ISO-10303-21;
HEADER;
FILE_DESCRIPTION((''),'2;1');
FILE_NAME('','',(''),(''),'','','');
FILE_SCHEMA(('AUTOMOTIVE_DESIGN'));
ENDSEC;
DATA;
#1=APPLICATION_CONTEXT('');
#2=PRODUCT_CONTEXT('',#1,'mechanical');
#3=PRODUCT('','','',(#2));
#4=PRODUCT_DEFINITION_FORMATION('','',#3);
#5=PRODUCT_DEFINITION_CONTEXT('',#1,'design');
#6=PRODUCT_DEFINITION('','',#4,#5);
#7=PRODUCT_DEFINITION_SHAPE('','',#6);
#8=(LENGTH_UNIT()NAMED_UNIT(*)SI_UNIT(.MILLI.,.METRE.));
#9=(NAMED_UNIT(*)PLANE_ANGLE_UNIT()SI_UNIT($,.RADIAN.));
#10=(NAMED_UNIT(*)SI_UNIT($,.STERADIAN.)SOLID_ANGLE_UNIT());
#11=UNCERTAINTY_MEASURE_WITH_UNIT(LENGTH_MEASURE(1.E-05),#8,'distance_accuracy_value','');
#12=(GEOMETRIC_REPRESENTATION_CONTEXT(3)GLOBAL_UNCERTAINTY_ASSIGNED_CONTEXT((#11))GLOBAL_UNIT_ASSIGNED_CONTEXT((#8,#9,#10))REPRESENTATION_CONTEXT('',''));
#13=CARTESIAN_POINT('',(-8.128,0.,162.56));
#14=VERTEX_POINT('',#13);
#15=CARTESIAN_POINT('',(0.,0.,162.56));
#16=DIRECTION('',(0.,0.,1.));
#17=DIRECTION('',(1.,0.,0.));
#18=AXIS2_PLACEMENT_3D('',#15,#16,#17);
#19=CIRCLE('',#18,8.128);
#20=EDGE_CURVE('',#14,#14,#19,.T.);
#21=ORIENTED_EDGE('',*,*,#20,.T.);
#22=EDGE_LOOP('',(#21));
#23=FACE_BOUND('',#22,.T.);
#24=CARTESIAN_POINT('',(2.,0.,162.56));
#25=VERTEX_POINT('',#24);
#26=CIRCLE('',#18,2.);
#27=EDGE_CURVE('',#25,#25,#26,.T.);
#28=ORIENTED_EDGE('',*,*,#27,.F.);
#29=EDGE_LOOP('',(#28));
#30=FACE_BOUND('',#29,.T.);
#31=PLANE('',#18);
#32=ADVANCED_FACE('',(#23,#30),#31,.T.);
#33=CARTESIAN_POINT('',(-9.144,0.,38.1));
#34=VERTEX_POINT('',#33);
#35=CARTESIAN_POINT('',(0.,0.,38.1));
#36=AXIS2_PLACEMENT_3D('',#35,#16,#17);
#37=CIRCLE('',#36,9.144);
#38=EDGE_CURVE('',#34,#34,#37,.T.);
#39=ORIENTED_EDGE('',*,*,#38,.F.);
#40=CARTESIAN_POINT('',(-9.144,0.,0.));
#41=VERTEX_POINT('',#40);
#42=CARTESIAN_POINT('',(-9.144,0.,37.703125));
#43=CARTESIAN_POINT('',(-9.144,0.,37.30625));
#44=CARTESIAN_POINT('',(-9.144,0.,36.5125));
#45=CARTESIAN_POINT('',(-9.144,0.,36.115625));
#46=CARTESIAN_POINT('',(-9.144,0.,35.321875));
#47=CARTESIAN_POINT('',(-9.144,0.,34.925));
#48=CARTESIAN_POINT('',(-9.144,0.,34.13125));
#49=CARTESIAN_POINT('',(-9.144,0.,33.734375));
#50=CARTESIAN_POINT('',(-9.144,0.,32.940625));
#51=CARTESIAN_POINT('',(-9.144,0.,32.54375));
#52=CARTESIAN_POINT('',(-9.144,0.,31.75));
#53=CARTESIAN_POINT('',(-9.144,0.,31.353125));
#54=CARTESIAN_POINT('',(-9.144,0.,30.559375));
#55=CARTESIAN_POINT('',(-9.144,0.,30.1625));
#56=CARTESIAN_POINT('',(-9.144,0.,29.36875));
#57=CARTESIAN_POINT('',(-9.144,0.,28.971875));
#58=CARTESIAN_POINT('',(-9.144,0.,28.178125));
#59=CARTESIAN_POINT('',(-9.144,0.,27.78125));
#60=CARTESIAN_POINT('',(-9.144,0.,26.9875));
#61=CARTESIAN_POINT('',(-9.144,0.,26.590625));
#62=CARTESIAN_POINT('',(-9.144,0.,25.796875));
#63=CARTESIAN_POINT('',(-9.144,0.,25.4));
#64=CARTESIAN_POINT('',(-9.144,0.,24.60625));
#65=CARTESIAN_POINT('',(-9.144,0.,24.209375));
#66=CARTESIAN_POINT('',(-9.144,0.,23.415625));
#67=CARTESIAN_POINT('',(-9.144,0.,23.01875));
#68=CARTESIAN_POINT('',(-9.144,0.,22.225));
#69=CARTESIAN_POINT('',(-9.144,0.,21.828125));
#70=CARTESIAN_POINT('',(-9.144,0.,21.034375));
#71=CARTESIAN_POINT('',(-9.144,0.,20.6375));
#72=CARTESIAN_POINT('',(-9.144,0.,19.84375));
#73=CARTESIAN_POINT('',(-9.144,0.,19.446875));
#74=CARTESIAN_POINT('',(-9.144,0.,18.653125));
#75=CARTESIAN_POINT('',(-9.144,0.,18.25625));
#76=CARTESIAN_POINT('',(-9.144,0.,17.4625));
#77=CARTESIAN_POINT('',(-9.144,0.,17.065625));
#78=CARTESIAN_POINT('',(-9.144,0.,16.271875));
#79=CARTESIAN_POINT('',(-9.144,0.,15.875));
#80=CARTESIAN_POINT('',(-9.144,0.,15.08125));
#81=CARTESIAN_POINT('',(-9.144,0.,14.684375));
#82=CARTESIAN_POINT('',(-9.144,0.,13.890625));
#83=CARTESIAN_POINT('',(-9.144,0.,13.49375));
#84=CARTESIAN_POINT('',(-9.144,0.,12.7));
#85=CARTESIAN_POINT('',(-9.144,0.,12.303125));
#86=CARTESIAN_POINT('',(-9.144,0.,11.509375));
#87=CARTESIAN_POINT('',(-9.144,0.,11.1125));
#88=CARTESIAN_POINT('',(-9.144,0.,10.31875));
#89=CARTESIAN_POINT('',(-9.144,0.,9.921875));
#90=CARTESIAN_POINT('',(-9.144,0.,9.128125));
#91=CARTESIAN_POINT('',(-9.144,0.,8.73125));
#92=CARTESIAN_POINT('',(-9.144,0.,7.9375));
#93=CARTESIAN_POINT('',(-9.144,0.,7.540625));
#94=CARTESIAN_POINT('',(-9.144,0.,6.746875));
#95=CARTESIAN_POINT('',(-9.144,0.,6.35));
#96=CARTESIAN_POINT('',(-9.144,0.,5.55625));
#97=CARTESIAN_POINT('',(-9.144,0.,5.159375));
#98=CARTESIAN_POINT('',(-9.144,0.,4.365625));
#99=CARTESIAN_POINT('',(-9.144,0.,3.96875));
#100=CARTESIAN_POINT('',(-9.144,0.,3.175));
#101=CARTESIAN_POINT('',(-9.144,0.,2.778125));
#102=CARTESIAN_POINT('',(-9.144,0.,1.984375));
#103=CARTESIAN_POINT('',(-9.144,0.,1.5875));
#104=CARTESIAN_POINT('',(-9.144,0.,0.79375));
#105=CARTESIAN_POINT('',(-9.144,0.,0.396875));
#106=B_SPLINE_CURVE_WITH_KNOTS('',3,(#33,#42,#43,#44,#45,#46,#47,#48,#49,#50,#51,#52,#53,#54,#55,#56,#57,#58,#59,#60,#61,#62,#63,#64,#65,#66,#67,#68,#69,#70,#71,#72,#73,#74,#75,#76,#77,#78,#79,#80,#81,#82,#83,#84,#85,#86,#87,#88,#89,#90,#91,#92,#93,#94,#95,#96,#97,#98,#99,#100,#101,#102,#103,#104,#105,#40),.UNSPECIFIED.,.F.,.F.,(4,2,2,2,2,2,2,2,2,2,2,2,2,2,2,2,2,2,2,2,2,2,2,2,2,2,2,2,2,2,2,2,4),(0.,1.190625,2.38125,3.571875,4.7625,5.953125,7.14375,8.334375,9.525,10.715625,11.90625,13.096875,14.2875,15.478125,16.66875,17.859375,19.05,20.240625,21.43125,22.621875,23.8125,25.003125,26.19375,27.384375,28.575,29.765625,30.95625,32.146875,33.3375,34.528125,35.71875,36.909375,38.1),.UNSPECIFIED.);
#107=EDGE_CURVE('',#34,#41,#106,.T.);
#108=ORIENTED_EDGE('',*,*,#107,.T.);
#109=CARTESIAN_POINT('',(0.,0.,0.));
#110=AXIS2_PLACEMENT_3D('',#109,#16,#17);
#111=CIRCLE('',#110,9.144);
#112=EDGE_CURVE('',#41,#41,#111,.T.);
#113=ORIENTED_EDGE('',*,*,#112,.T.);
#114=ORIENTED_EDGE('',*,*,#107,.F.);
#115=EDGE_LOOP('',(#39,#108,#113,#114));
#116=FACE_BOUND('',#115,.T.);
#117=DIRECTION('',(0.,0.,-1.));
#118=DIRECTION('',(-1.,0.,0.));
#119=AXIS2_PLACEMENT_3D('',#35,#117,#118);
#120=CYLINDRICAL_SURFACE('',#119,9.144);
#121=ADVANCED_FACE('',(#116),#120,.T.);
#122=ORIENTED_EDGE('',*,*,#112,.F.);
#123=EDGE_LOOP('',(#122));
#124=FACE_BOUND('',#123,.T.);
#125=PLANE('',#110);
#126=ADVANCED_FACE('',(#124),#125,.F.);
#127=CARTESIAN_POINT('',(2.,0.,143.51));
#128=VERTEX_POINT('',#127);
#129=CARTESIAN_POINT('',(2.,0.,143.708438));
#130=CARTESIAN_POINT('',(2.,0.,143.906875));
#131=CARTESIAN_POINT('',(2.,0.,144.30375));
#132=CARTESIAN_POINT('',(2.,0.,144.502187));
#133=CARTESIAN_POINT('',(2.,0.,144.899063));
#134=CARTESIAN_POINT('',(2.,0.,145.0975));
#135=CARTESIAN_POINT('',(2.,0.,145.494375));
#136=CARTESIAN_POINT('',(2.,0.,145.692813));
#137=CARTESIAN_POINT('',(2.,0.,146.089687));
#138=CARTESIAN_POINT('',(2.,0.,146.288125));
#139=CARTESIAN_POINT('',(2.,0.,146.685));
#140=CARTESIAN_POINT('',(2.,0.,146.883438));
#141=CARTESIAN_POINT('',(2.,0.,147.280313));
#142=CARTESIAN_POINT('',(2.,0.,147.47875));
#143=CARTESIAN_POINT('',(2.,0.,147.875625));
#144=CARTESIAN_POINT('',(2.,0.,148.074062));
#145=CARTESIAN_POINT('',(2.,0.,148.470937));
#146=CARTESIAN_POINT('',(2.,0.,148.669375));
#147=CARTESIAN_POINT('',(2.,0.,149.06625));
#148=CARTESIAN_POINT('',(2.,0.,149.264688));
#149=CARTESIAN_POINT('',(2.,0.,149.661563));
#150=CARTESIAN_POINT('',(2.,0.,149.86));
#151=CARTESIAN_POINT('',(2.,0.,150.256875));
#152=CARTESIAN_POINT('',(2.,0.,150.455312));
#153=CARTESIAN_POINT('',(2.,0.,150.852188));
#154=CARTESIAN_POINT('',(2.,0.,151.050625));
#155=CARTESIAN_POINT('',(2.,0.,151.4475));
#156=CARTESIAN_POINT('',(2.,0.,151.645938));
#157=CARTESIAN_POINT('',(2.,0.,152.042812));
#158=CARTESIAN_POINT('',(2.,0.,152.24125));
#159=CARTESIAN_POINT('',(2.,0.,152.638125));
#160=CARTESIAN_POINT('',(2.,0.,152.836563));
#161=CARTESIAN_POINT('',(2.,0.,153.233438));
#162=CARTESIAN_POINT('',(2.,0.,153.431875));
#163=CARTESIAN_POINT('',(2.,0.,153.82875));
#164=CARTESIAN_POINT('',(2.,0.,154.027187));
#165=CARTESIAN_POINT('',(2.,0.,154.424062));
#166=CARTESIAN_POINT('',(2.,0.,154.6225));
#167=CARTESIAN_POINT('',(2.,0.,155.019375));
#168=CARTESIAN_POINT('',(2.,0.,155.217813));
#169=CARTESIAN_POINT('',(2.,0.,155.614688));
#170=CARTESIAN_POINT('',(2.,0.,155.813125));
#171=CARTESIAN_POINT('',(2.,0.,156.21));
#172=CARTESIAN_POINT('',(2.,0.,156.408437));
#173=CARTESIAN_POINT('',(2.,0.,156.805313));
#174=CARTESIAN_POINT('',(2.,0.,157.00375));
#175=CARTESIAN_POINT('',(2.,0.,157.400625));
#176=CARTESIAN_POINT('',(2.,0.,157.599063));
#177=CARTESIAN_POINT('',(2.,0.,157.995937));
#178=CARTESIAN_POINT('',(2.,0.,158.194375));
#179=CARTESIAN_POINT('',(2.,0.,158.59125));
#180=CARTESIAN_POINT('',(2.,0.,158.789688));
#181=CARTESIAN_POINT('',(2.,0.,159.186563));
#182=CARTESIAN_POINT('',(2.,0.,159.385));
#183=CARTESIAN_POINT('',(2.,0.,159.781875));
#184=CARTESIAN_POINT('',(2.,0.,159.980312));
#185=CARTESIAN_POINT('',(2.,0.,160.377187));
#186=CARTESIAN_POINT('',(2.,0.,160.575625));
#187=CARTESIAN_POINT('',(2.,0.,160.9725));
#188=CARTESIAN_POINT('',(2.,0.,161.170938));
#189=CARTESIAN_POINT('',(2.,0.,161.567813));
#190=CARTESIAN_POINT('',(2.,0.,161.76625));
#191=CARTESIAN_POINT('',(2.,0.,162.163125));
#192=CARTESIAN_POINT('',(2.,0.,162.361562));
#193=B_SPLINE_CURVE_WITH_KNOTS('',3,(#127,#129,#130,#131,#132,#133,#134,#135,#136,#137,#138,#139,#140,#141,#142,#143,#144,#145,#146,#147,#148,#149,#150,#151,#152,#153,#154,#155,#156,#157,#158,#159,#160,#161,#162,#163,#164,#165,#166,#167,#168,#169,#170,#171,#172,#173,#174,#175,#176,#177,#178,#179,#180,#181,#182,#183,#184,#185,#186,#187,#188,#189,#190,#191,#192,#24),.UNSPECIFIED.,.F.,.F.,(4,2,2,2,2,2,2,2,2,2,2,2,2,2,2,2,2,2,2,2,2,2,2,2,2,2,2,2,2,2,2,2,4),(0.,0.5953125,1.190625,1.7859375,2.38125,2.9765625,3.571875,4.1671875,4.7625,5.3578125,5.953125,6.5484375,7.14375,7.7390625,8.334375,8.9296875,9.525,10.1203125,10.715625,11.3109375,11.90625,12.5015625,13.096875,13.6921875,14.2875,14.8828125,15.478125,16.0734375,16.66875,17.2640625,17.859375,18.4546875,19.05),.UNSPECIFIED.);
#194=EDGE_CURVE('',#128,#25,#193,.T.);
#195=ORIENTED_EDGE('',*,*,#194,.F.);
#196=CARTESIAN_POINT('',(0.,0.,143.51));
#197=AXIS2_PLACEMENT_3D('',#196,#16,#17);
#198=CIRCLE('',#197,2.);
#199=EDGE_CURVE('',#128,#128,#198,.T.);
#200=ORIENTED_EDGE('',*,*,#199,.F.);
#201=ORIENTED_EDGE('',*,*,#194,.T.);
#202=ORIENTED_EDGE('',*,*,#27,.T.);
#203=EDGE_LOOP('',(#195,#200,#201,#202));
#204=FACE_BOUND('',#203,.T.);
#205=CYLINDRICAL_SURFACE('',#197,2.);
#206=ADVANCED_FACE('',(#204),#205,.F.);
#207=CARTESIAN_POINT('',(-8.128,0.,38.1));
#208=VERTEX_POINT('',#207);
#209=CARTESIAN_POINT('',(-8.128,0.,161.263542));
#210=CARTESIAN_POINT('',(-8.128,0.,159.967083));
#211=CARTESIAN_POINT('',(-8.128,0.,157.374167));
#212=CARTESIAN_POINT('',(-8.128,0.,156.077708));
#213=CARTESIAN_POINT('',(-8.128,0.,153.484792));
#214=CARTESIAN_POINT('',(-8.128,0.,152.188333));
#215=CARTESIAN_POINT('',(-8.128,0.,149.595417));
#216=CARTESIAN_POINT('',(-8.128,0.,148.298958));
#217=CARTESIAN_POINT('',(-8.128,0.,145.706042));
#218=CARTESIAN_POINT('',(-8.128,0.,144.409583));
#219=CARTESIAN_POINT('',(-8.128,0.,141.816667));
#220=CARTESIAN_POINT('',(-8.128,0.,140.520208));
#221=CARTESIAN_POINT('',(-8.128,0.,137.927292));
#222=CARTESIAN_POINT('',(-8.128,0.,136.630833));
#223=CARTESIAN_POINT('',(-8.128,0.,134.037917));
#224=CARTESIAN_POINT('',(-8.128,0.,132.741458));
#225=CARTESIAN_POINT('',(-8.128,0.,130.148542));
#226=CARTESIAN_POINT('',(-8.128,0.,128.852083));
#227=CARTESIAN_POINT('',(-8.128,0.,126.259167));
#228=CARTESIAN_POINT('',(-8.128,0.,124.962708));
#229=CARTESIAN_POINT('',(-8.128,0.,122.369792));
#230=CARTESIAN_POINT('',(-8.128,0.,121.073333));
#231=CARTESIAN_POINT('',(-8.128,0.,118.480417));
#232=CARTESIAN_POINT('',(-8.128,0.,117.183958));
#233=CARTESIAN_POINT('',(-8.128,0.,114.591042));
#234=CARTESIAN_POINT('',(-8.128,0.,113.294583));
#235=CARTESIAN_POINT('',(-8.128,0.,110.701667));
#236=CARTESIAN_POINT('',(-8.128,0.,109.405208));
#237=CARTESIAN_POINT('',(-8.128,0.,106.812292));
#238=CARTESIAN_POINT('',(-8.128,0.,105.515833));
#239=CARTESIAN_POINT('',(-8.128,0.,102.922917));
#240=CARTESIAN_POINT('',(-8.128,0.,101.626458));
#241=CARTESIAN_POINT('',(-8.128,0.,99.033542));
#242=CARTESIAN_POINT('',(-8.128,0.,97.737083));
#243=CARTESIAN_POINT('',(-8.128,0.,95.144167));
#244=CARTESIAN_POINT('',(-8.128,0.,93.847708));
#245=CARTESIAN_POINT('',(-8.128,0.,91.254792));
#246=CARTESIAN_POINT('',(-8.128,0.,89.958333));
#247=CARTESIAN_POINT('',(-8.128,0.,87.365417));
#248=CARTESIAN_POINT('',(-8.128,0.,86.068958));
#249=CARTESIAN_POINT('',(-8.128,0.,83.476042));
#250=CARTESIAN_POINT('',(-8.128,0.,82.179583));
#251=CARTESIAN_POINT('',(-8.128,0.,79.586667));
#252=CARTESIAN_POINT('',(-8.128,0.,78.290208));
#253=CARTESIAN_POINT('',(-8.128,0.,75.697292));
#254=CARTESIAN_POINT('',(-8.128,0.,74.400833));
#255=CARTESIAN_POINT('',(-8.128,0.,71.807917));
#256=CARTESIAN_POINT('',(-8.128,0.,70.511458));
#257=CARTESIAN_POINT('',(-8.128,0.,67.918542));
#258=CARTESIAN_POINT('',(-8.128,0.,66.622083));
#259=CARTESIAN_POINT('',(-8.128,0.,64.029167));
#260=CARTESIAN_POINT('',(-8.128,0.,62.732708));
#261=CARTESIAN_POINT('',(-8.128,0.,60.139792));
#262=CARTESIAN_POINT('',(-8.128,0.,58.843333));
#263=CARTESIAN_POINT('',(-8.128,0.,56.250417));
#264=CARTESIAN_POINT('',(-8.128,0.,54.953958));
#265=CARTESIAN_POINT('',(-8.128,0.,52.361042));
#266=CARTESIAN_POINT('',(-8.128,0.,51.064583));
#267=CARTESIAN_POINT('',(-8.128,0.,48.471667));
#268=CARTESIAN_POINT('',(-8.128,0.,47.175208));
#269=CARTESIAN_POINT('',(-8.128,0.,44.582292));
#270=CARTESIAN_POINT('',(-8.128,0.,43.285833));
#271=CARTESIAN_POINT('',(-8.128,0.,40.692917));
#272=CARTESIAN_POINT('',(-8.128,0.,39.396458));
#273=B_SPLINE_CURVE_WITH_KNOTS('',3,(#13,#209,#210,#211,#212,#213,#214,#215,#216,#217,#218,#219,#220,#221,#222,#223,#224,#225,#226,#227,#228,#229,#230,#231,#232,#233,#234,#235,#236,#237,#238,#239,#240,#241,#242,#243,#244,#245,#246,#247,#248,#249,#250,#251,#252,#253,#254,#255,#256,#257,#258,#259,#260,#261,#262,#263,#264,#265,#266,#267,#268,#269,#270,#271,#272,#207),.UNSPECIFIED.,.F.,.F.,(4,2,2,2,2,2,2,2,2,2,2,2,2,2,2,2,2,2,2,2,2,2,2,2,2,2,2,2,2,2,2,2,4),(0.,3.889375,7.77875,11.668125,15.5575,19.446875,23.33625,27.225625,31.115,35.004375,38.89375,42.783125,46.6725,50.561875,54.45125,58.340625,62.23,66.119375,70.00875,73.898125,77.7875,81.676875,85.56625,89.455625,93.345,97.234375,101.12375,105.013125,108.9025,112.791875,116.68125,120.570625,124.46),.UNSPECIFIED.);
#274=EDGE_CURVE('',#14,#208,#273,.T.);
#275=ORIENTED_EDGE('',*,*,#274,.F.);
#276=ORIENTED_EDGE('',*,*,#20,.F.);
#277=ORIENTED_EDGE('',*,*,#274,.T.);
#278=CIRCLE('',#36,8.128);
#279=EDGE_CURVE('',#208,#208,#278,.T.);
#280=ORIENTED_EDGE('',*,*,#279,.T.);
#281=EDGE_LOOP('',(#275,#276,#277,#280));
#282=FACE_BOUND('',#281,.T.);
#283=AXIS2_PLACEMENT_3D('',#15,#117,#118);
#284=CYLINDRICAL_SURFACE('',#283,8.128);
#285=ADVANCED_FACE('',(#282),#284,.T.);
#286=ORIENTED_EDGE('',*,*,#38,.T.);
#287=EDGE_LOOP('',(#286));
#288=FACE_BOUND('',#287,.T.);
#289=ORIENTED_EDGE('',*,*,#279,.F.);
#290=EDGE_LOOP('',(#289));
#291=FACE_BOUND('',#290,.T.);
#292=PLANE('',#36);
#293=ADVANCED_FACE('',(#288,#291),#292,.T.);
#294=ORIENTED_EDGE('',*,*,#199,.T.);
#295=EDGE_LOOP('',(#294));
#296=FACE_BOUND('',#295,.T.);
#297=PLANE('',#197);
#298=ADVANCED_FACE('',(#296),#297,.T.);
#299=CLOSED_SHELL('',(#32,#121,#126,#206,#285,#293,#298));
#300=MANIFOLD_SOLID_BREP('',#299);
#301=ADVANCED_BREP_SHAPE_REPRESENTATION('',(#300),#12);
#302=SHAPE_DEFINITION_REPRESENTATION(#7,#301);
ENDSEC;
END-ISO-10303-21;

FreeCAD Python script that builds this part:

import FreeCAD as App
import Part
import Sketcher
Q = App.Units.Quantity

doc = App.newDocument("Part")
body = doc.addObject("PartDesign::Body", "Body")

# Sketch on XY plane
sketch1 = doc.addObject("Sketcher::SketchObject", "Sketch")
body.addObject(sketch1)
sketch1.AttachmentSupport = (doc.XY_Plane, [""])
sketch1.MapMode = "FlatFace"
sketch1.addGeometry(Part.Circle(App.Vector(0, 0, 0), App.Vector(0, 0, 1), 9), False)
sketch1.addConstraint([
    Sketcher.Constraint("Coincident", 0, 3, -1, 1),
    Sketcher.Constraint("Diameter", 0, Q("0.72 in")),
])
pad1 = doc.addObject("PartDesign::Pad", "Pad")
body.addObject(pad1)
pad1.Profile = sketch1
pad1.Length = Q("1.5 in")

# Sketch on XY plane
sketch2 = doc.addObject("Sketcher::SketchObject", "Sketch001")
body.addObject(sketch2)
sketch2.AttachmentSupport = (doc.XY_Plane, [""])
sketch2.MapMode = "FlatFace"
sketch2.AttachmentOffset = App.Placement(App.Vector(0, 0, 1.5 * 25.4), App.Rotation())
sketch2.addGeometry(Part.Circle(App.Vector(0, 0, 0), App.Vector(0, 0, 1), 8), False)
sketch2.addConstraint([
    Sketcher.Constraint("Coincident", 0, 3, -1, 1),
    Sketcher.Constraint("Diameter", 0, Q("0.64 in")),
])
pad2 = doc.addObject("PartDesign::Pad", "Pad001")
body.addObject(pad2)
pad2.Profile = sketch2
pad2.Length = Q("4.9 in")

# Sketch on XY plane
sketch3 = doc.addObject("Sketcher::SketchObject", "Sketch002")
body.addObject(sketch3)
sketch3.AttachmentSupport = (doc.XY_Plane, [""])
sketch3.MapMode = "FlatFace"
sketch3.AttachmentOffset = App.Placement(App.Vector(0, 0, 6.4 * 25.4), App.Rotation())
sketch3.addGeometry(Part.Circle(App.Vector(0, 0, 0), App.Vector(0, 0, 1), 2), False)
sketch3.addConstraint([
    Sketcher.Constraint("Coincident", 0, 3, -1, 1),
    Sketcher.Constraint("Diameter", 0, Q("4 mm")),
])
pocket1 = doc.addObject("PartDesign::Pocket", "Pocket")
body.addObject(pocket1)
pocket1.Profile = sketch3
pocket1.Length = Q("0.75 in")

doc.recompute()
